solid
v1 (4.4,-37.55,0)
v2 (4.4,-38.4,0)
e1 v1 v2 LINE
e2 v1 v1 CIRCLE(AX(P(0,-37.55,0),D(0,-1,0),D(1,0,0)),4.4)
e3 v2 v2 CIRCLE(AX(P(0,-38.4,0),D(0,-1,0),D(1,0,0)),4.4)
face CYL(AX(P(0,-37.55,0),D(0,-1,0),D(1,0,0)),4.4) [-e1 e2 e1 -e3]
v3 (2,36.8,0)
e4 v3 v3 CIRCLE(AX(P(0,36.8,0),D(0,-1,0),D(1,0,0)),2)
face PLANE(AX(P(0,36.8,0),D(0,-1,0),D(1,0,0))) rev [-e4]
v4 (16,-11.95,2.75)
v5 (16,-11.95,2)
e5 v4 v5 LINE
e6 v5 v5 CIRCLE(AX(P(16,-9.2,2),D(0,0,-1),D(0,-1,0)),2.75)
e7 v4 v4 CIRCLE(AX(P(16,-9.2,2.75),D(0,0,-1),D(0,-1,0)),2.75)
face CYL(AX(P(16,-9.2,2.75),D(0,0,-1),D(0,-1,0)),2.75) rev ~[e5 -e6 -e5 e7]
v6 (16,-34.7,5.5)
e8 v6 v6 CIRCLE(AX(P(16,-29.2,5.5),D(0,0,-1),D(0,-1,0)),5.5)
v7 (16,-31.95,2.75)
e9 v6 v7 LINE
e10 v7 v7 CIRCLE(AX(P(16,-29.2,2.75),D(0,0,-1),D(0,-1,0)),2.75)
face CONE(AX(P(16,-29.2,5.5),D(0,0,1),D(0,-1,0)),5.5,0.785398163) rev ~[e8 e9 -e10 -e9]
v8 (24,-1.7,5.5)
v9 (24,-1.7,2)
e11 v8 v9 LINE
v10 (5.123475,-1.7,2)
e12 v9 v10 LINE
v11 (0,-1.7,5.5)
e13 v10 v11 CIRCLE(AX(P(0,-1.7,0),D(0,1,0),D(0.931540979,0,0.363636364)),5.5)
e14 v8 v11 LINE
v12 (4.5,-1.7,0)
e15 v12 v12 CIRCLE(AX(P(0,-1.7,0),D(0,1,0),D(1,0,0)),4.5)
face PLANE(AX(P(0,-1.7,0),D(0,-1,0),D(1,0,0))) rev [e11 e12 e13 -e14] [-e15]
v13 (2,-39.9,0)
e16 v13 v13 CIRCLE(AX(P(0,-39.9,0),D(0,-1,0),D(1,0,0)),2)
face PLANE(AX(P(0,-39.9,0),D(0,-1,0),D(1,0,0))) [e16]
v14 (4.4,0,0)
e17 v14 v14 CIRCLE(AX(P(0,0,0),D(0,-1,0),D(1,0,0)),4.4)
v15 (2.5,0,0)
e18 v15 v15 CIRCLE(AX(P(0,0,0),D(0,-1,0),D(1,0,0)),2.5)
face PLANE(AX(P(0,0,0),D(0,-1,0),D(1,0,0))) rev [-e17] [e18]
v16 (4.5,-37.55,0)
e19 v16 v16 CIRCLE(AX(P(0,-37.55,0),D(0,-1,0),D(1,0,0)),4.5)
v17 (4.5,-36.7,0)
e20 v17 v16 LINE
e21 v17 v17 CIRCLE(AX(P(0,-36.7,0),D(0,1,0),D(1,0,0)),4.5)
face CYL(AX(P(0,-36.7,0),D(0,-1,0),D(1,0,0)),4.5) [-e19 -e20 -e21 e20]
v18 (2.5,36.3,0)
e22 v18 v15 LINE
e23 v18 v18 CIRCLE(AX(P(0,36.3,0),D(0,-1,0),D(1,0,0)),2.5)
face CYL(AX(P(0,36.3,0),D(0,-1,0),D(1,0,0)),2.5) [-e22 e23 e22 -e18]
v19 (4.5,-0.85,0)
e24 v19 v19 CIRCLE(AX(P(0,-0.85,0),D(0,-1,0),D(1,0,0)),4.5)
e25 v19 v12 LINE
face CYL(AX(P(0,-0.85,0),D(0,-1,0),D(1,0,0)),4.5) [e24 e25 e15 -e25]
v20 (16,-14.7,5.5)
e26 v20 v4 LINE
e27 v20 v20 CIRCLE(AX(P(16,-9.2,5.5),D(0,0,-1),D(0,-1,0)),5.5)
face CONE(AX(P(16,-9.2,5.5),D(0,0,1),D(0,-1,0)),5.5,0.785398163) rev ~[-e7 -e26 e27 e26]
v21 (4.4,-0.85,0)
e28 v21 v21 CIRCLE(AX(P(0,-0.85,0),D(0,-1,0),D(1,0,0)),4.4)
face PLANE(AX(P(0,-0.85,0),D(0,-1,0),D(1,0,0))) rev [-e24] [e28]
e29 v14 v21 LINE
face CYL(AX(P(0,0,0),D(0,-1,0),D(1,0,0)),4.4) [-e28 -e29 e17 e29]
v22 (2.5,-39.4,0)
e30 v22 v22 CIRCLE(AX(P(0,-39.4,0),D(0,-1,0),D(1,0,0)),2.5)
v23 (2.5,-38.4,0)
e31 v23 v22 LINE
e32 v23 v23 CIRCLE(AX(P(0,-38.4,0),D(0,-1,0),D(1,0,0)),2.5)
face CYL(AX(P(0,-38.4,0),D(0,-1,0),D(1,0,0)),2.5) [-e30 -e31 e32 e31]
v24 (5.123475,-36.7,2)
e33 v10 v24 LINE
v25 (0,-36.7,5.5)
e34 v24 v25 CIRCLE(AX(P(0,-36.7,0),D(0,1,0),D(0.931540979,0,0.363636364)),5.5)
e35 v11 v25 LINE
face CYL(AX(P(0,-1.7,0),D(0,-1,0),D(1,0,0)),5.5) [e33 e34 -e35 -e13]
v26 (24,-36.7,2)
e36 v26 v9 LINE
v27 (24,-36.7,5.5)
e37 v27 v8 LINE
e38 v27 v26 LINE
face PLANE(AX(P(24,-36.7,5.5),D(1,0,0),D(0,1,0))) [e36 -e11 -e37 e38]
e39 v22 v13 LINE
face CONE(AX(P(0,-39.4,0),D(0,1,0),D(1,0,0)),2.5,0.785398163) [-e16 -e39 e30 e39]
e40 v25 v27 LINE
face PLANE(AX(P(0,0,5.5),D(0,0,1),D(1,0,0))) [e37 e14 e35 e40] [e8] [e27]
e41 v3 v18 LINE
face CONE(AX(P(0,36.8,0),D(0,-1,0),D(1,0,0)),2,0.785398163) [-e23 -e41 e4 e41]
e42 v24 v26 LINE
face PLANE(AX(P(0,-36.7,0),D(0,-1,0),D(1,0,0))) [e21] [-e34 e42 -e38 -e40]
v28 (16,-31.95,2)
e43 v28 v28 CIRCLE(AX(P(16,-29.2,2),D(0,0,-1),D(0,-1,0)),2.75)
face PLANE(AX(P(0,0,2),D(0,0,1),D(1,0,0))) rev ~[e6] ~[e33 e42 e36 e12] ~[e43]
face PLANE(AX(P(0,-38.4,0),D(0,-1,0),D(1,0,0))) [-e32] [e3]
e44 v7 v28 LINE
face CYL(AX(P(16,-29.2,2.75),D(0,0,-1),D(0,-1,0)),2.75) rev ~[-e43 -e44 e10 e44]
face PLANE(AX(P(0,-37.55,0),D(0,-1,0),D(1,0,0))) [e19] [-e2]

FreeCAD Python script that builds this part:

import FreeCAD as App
import Part
import Sketcher
from FreeCAD import Vector


def add_polygon(sketch, points):
    """Adds a closed chain of lines whose ends are joined by coincident constraints."""
    first, n = sketch.GeometryCount, len(points)
    for a, b in zip(points, points[1:] + points[:1]):
        sketch.addGeometry(Part.LineSegment(App.Vector(*a, 0), App.Vector(*b, 0)), False)
    for i in range(n):
        sketch.addConstraint(Sketcher.Constraint("Coincident", first + i, 2, first + (i + 1) % n, 1))

doc = App.newDocument("Part")
body = doc.addObject("PartDesign::Body", "Body")

# Sketch on XY plane
sketch1 = doc.addObject("Sketcher::SketchObject", "Sketch")
body.addObject(sketch1)
sketch1.AttachmentSupport = (doc.XY_Plane, [""])
sketch1.MapMode = "FlatFace"
add_polygon(sketch1, [(0, 36.8), (0, -39.9), (2, -39.9), (2.5, -39.4), (2.5, -38.4), (4.4, -38.4), (4.4, -37.55), (4.5, -37.55), (4.5, -36.7), (5.5, -36.7), (5.5, -1.7), (4.5, -1.7), (4.5, -0.85), (4.4, -0.85), (4.4, 0), (2.5, 0), (2.5, 36.3), (2, 36.8)])  # lines 0-17
sketch1.addConstraint(Sketcher.Constraint("Vertical", 0))
sketch1.addConstraint(Sketcher.Constraint("Horizontal", 1))
sketch1.addConstraint(Sketcher.Constraint("Vertical", 3))
sketch1.addConstraint(Sketcher.Constraint("Horizontal", 4))
sketch1.addConstraint(Sketcher.Constraint("Vertical", 5))
sketch1.addConstraint(Sketcher.Constraint("Horizontal", 6))
sketch1.addConstraint(Sketcher.Constraint("Vertical", 7))
sketch1.addConstraint(Sketcher.Constraint("Horizontal", 8))
sketch1.addConstraint(Sketcher.Constraint("Vertical", 9))
sketch1.addConstraint(Sketcher.Constraint("Horizontal", 10))
sketch1.addConstraint(Sketcher.Constraint("Vertical", 11))
sketch1.addConstraint(Sketcher.Constraint("Horizontal", 12))
sketch1.addConstraint(Sketcher.Constraint("Vertical", 13))
sketch1.addConstraint(Sketcher.Constraint("Horizontal", 14))
sketch1.addConstraint(Sketcher.Constraint("Vertical", 15))
sketch1.addConstraint(Sketcher.Constraint("Horizontal", 17))
sketch1.addConstraint(Sketcher.Constraint("PointOnObject", 0, 2, -2))
sketch1.addConstraint(Sketcher.Constraint("PointOnObject", 13, 2, -1))
sketch1.addConstraint(Sketcher.Constraint("Perpendicular", 2, 16))
sketch1.addConstraint(Sketcher.Constraint("Vertical", 7, 2, 10, 2))
sketch1.addConstraint(Sketcher.Constraint("Vertical", 5, 2, 12, 2))
sketch1.addConstraint(Sketcher.Constraint("Vertical", 3, 2, 14, 2))
sketch1.addConstraint(Sketcher.Constraint("Vertical", 1, 2, 16, 2))
sketch1.addConstraint(Sketcher.Constraint("Equal", 10, 3))
sketch1.addConstraint(Sketcher.Constraint("Equal", 5, 7))
sketch1.addConstraint(Sketcher.Constraint("Equal", 7, 11))
sketch1.addConstraint(Sketcher.Constraint("Equal", 11, 13))
sketch1.addConstraint(Sketcher.Constraint("Equal", 2, 16))
sketch1.addConstraint(Sketcher.Constraint("DistanceX", 1, 1, 1, 2, 2.0))
sketch1.addConstraint(Sketcher.Constraint("DistanceX", 8, 1, 8, 2, 1.0))
sketch1.addConstraint(Sketcher.Constraint("DistanceY", 9, 1, 9, 2, 35.0))
sketch1.addConstraint(Sketcher.Constraint("DistanceX", 4, 1, 4, 2, 1.9))
sketch1.addConstraint(Sketcher.Constraint("DistanceX", 6, 1, 6, 2, 0.1))
sketch1.addConstraint(Sketcher.Constraint("DistanceY", 0, 2, 0, 1, 76.7))
sketch1.addConstraint(Sketcher.Constraint("DistanceY", 15, 1, 15, 2, 36.3))
sketch1.addConstraint(Sketcher.Constraint("DistanceY", 10, 2, 15, 2, 38.0))
revolution = doc.addObject("PartDesign::Revolution", "Revolution")
body.addObject(revolution)
revolution.Profile = sketch1
revolution.ReferenceAxis = (sketch1, ["V_Axis"])
revolution.Angle = 360

# Sketch on XY plane
sketch2 = doc.addObject("Sketcher::SketchObject", "Sketch001")
body.addObject(sketch2)
sketch2.AttachmentSupport = (doc.XY_Plane, [""])
sketch2.MapMode = "FlatFace"
sketch2.AttachmentOffset = App.Placement(Vector(0, 0, 5.5), App.Rotation())
add_polygon(sketch2, [(0, -2), (0, -37), (24, -37), (24, -2)])  # lines 0-3
sketch2.addConstraint(Sketcher.Constraint("Vertical", 0))
sketch2.addConstraint(Sketcher.Constraint("Horizontal", 1))
sketch2.addConstraint(Sketcher.Constraint("Vertical", 2))
sketch2.addConstraint(Sketcher.Constraint("Horizontal", 3))
sketch2.addConstraint(Sketcher.Constraint("PointOnObject", 0, 2, -2))
sketch2.addConstraint(Sketcher.Constraint("DistanceX", 1, 1, 1, 2, 24.0))
sketch2.addConstraint(Sketcher.Constraint("DistanceY", 0, 2, 0, 1, 35.0))
sketch2.addConstraint(Sketcher.Constraint("DistanceY", 0, 2, -1, 1, 36.7))
pad1 = doc.addObject("PartDesign::Pad", "Pad")
body.addObject(pad1)
pad1.Profile = sketch2
pad1.Length = 3.5
pad1.Reversed = True

# Sketch on XY plane
sketch3 = doc.addObject("Sketcher::SketchObject", "Sketch002")
body.addObject(sketch3)
sketch3.AttachmentSupport = (doc.XY_Plane, [""])
sketch3.MapMode = "FlatFace"
sketch3.AttachmentOffset = App.Placement(Vector(0, 0, 5.5), App.Rotation())
sketch3.addGeometry(Part.Circle(Vector(16, -9.2, 0), Vector(0, 0, 1), 2.8), False)
sketch3.addConstraint(Sketcher.Constraint("Diameter", 0, 5.5))
sketch3.addConstraint(Sketcher.Constraint("DistanceX", -1, 1, 0, 3, 16.0))
sketch3.addConstraint(Sketcher.Constraint("DistanceY", 0, 3, -1, 1, 9.2))
doc.recompute()
hole = doc.addObject("PartDesign::Hole", "Hole")
body.addObject(hole)
hole.Profile = sketch3
hole.ThreadType = "None"
hole.Diameter = 5.5
hole.DepthType = "Dimension"
hole.Depth = 3.5
hole.DrillPoint = "Flat"
hole.HoleCutType = "Countersink"
hole.HoleCutDiameter = 11
hole.HoleCutCountersinkAngle = 90

# Sketch on XY plane
sketch4 = doc.addObject("Sketcher::SketchObject", "Sketch003")
body.addObject(sketch4)
sketch4.AttachmentSupport = (doc.XY_Plane, [""])
sketch4.MapMode = "FlatFace"
sketch4.AttachmentOffset = App.Placement(Vector(0, 0, 5.5), App.Rotation())
sketch4.addGeometry(Part.Circle(Vector(16, -29.2, 0), Vector(0, 0, 1), 2.8), False)
sketch4.addConstraint(Sketcher.Constraint("Diameter", 0, 5.5))
sketch4.addConstraint(Sketcher.Constraint("DistanceX", -1, 1, 0, 3, 16.0))
sketch4.addConstraint(Sketcher.Constraint("DistanceY", 0, 3, -1, 1, 29.2))
doc.recompute()
hole2 = doc.addObject("PartDesign::Hole", "Hole001")
body.addObject(hole2)
hole2.Profile = sketch4
hole2.ThreadType = "None"
hole2.Diameter = 5.5
hole2.DepthType = "Dimension"
hole2.Depth = 3.5
hole2.DrillPoint = "Flat"
hole2.HoleCutType = "Countersink"
hole2.HoleCutDiameter = 11
hole2.HoleCutCountersinkAngle = 90

doc.recompute()
